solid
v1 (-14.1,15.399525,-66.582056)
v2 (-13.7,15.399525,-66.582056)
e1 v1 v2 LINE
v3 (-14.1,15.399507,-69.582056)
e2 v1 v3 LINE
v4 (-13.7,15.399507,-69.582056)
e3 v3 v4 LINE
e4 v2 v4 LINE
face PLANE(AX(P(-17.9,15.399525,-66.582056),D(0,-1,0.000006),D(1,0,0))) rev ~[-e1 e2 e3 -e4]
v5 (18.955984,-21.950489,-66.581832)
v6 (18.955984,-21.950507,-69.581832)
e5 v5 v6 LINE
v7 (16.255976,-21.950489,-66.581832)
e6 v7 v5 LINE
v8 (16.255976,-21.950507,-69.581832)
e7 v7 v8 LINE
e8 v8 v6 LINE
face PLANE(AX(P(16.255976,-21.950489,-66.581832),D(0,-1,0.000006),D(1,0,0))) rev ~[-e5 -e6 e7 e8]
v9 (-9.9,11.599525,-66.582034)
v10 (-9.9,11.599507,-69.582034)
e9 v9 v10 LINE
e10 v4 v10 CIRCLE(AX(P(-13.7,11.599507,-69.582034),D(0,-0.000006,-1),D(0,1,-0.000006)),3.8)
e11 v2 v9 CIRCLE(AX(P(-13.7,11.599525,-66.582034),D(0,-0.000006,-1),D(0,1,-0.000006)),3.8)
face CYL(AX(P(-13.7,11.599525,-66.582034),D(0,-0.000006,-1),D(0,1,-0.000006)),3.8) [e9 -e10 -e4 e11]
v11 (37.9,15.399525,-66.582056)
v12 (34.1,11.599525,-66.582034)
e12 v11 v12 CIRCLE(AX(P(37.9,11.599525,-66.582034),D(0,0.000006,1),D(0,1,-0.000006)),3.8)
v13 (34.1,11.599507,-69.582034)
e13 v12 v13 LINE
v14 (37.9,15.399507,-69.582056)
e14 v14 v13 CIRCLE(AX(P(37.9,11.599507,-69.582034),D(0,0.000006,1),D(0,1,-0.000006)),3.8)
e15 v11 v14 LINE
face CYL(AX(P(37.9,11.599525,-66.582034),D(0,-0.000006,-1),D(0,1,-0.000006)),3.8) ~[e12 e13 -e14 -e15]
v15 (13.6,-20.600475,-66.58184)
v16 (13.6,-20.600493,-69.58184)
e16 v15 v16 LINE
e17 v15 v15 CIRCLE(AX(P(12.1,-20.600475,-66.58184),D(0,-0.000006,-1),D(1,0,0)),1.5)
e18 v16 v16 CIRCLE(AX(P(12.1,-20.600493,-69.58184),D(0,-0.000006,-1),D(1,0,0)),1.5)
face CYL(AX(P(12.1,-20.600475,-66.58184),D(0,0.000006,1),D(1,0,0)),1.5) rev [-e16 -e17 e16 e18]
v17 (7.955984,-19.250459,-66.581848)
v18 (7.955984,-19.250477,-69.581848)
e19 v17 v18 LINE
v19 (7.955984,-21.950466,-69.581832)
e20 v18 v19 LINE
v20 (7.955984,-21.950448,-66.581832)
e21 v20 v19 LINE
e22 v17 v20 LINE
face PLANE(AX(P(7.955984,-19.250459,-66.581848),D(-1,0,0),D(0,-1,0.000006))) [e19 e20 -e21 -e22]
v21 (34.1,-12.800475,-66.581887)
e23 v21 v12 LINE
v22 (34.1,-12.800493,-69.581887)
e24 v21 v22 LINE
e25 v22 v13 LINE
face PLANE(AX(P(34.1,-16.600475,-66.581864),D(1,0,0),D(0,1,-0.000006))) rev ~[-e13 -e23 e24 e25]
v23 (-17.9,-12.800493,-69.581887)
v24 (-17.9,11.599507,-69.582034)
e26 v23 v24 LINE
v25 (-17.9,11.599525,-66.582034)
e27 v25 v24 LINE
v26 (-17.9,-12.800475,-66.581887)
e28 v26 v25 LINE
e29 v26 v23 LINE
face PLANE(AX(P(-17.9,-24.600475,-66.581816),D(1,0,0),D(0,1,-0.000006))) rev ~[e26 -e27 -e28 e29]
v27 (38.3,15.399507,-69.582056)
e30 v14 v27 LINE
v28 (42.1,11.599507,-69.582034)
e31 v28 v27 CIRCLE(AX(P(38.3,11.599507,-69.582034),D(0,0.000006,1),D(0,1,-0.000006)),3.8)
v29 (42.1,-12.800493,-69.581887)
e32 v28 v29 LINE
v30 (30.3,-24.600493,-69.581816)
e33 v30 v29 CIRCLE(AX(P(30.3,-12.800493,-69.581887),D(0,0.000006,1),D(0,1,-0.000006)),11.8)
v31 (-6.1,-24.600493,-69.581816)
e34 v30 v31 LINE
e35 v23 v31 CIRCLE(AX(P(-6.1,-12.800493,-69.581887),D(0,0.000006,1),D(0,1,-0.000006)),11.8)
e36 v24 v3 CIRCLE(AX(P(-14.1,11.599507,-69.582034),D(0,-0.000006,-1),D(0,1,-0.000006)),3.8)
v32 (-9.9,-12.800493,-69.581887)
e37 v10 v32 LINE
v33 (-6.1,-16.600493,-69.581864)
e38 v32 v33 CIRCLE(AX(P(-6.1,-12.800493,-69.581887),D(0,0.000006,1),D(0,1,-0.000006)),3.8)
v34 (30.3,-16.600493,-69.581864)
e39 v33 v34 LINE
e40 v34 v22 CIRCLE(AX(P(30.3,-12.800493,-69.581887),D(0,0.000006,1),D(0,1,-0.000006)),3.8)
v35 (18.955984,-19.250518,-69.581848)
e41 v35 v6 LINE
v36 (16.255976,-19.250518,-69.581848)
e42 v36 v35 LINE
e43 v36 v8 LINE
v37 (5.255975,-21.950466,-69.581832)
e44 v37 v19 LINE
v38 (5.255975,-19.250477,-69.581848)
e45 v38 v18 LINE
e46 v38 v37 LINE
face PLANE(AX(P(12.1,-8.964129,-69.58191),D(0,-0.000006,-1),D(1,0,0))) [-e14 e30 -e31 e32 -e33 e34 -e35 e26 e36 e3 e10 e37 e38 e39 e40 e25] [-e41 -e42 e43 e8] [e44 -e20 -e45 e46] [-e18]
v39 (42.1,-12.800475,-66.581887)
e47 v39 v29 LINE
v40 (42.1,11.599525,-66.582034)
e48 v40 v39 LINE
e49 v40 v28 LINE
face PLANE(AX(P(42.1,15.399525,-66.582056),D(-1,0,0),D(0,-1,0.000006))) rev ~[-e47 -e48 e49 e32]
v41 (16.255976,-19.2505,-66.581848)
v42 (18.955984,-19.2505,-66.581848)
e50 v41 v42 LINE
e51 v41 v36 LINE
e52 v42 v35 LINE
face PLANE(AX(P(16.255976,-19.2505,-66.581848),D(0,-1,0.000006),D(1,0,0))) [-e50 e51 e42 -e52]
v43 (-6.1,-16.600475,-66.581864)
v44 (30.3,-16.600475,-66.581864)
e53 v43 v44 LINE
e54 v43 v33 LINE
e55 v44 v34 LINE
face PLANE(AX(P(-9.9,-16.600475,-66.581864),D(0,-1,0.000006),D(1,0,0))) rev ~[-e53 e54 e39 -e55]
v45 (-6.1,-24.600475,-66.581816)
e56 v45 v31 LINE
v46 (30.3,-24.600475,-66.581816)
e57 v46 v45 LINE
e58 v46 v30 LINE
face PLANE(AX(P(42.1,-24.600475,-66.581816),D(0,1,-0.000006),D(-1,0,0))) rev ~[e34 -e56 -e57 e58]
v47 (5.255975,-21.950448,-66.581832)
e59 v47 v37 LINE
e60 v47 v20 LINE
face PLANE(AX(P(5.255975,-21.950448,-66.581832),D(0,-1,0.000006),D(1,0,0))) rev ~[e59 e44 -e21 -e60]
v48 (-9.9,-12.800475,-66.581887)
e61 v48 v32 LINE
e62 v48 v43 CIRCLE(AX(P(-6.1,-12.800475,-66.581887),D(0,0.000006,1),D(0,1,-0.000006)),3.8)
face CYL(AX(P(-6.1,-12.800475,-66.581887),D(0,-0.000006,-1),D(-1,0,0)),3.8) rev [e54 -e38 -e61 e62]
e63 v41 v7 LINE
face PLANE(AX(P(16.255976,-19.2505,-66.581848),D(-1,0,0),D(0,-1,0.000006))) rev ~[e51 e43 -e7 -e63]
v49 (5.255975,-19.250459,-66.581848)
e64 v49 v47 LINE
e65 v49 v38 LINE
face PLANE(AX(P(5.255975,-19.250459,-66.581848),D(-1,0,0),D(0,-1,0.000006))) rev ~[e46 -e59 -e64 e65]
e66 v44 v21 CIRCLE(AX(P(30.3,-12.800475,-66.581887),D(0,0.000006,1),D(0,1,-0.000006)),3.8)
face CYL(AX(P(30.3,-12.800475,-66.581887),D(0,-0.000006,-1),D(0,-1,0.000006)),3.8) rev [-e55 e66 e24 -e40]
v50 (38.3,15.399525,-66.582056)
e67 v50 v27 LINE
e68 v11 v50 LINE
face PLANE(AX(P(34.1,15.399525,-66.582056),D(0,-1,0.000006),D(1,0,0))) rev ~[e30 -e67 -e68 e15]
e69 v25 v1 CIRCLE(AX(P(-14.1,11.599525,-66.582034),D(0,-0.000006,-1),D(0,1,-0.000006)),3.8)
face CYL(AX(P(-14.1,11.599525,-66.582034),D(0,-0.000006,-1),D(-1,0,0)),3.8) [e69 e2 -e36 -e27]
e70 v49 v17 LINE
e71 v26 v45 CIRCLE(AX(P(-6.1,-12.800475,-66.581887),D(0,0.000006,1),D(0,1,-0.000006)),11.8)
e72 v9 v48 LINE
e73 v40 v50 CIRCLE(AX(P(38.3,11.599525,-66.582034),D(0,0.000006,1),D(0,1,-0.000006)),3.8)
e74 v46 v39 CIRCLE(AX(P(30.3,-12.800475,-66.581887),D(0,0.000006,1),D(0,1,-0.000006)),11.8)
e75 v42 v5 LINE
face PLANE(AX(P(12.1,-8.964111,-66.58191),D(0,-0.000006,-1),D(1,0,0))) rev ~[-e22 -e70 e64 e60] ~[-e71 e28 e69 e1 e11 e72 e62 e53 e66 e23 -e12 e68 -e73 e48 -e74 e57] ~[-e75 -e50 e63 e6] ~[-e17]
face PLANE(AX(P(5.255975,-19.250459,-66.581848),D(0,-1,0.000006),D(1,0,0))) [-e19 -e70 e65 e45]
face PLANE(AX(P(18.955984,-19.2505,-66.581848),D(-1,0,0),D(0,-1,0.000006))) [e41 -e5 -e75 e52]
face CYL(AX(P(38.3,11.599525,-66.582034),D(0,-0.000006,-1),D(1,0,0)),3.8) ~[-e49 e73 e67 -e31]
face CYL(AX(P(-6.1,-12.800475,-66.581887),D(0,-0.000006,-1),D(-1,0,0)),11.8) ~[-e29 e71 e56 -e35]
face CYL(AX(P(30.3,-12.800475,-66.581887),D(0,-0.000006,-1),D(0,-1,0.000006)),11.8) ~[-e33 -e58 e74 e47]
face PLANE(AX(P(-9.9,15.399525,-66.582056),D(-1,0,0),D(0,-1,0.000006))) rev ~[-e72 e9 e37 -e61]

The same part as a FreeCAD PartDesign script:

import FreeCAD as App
import Part
import Sketcher
Q = App.Units.Quantity


def edges_at(feature, points):
    """Names of the edges that pass closest to the given points."""
    edges = feature.Shape.Edges
    near = lambda p: min(range(len(edges)), key=lambda i: edges[i].distToShape(Part.Vertex(*p))[0])
    return sorted({f"Edge{near(p) + 1}" for p in points})

doc = App.newDocument("Part")
params = doc.addObject("Spreadsheet::Sheet", "Params")
for row, (alias, value) in enumerate([
    ("sketch1_diameter", "3 mm"),
    ("sketch1_width", "8 mm"),
    ("sketch1_width2", "44 mm"),
    ("sketch1_height", "40 mm"),
    ("sketch1_height2", "32 mm"),
    ("pad1_length", "3 mm"),
    ("fillet_radius", "3.8 mm"),
    ("fillet2_radius", "11.8 mm"),
], start=1):
    params.set(f"A{row}", alias)
    params.set(f"B{row}", "=" + value)
    params.setAlias(f"B{row}", alias)

body = doc.addObject("PartDesign::Body", "Body")

sketch1 = body.newObject("Sketcher::SketchObject", "Sketch")
sketch1.AttachmentSupport = (doc.getObject("XY_Plane"), [""])
sketch1.MapMode = "FlatFace"
sketch1.AttachmentOffset = App.Placement(App.Vector(0, 0, 2.818036), App.Rotation())
sketch1.addGeometry(Part.LineSegment(App.Vector(-30, -24.600475, 0), App.Vector(-30, 15.399525, 0)), False)
sketch1.addGeometry(Part.LineSegment(App.Vector(-30, 15.399525, 0), App.Vector(-22, 15.399525, 0)), False)
sketch1.addGeometry(Part.LineSegment(App.Vector(-22, 15.399525, 0), App.Vector(-22, -16.600475, 0)), False)
sketch1.addGeometry(Part.LineSegment(App.Vector(-22, -16.600475, 0), App.Vector(22, -16.600475, 0)), False)
sketch1.addGeometry(Part.LineSegment(App.Vector(22, -16.600475, 0), App.Vector(22, 15.399525, 0)), False)
sketch1.addGeometry(Part.LineSegment(App.Vector(22, 15.399525, 0), App.Vector(30, 15.399525, 0)), False)
sketch1.addGeometry(Part.LineSegment(App.Vector(30, 15.399525, 0), App.Vector(30, -24.600475, 0)), False)
sketch1.addGeometry(Part.LineSegment(App.Vector(30, -24.600475, 0), App.Vector(-30, -24.600475, 0)), False)
sketch1.addGeometry(Part.LineSegment(App.Vector(-4.144016, -19.25046, 0), App.Vector(-6.844024, -19.25046, 0)), False)
sketch1.addGeometry(Part.LineSegment(App.Vector(-6.844024, -19.25046, 0), App.Vector(-6.844024, -21.950449, 0)), False)
sketch1.addGeometry(Part.LineSegment(App.Vector(-6.844024, -21.950449, 0), App.Vector(-4.144016, -21.950449, 0)), False)
sketch1.addGeometry(Part.LineSegment(App.Vector(-4.144016, -21.950449, 0), App.Vector(-4.144016, -19.25046, 0)), False)
sketch1.addGeometry(Part.Circle(App.Vector(0, -20.600475, 0), App.Vector(0, 0, 1), 1.5), False)
sketch1.addGeometry(Part.LineSegment(App.Vector(6.855984, -19.250501, 0), App.Vector(4.155976, -19.250501, 0)), False)
sketch1.addGeometry(Part.LineSegment(App.Vector(4.155976, -19.250501, 0), App.Vector(4.155976, -21.950489, 0)), False)
sketch1.addGeometry(Part.LineSegment(App.Vector(4.155976, -21.950489, 0), App.Vector(6.855984, -21.950489, 0)), False)
sketch1.addGeometry(Part.LineSegment(App.Vector(6.855984, -21.950489, 0), App.Vector(6.855984, -19.250501, 0)), False)
sketch1.addConstraint(Sketcher.Constraint("Coincident", 0, 2, 1, 1))
sketch1.addConstraint(Sketcher.Constraint("Coincident", 1, 2, 2, 1))
sketch1.addConstraint(Sketcher.Constraint("Coincident", 2, 2, 3, 1))
sketch1.addConstraint(Sketcher.Constraint("Coincident", 3, 2, 4, 1))
sketch1.addConstraint(Sketcher.Constraint("Coincident", 4, 2, 5, 1))
sketch1.addConstraint(Sketcher.Constraint("Coincident", 5, 2, 6, 1))
sketch1.addConstraint(Sketcher.Constraint("Coincident", 6, 2, 7, 1))
sketch1.addConstraint(Sketcher.Constraint("Coincident", 7, 2, 0, 1))
sketch1.addConstraint(Sketcher.Constraint("Coincident", 8, 2, 9, 1))
sketch1.addConstraint(Sketcher.Constraint("Coincident", 9, 2, 10, 1))
sketch1.addConstraint(Sketcher.Constraint("Coincident", 10, 2, 11, 1))
sketch1.addConstraint(Sketcher.Constraint("Coincident", 11, 2, 8, 1))
sketch1.addConstraint(Sketcher.Constraint("Coincident", 13, 2, 14, 1))
sketch1.addConstraint(Sketcher.Constraint("Coincident", 14, 2, 15, 1))
sketch1.addConstraint(Sketcher.Constraint("Coincident", 15, 2, 16, 1))
sketch1.addConstraint(Sketcher.Constraint("Coincident", 16, 2, 13, 1))
sketch1.addConstraint(Sketcher.Constraint("Vertical", 0))
sketch1.addConstraint(Sketcher.Constraint("Horizontal", 1))
sketch1.addConstraint(Sketcher.Constraint("Vertical", 2))
sketch1.addConstraint(Sketcher.Constraint("Horizontal", 3))
sketch1.addConstraint(Sketcher.Constraint("Vertical", 4))
sketch1.addConstraint(Sketcher.Constraint("Horizontal", 5))
sketch1.addConstraint(Sketcher.Constraint("Vertical", 6))
sketch1.addConstraint(Sketcher.Constraint("Horizontal", 7))
sketch1.addConstraint(Sketcher.Constraint("Horizontal", 8))
sketch1.addConstraint(Sketcher.Constraint("Vertical", 9))
sketch1.addConstraint(Sketcher.Constraint("Horizontal", 10))
sketch1.addConstraint(Sketcher.Constraint("Vertical", 11))
sketch1.addConstraint(Sketcher.Constraint("Horizontal", 13))
sketch1.addConstraint(Sketcher.Constraint("Vertical", 14))
sketch1.addConstraint(Sketcher.Constraint("Horizontal", 15))
sketch1.addConstraint(Sketcher.Constraint("Vertical", 16))
sketch1.addConstraint(Sketcher.Constraint("Symmetric", 1, 2, 4, 2, -2))
sketch1.addConstraint(Sketcher.Constraint("PointOnObject", 12, 3, -2))
sketch1.addConstraint(Sketcher.Constraint("Equal", 1, 5))
sketch1.addConstraint(Sketcher.Constraint("Equal", 10, 13))
sketch1.addConstraint(Sketcher.Constraint("Equal", 11, 14))
sketch1.addConstraint(Sketcher.Constraint("Diameter", 12, Q("3 mm")))
sketch1.addConstraint(Sketcher.Constraint("DistanceX", 1, 1, 1, 2, Q("8 mm")))
sketch1.addConstraint(Sketcher.Constraint("DistanceX", 3, 1, 3, 2, Q("44 mm")))
sketch1.addConstraint(Sketcher.Constraint("DistanceY", 0, 1, 0, 2, Q("40 mm")))
sketch1.addConstraint(Sketcher.Constraint("DistanceY", 2, 2, 2, 1, Q("32 mm")))
sketch1.addConstraint(Sketcher.Constraint("DistanceY", 12, 3, 0, 2, Q("36 mm")))
sketch1.addConstraint(Sketcher.Constraint("DistanceX", 8, 2, 13, 2, Q("11 mm")))
sketch1.addConstraint(Sketcher.Constraint("DistanceX", 8, 2, 8, 1, Q("2.700009 mm")))
sketch1.addConstraint(Sketcher.Constraint("DistanceY", 9, 2, 9, 1, Q("2.699989 mm")))
sketch1.addConstraint(Sketcher.Constraint("DistanceY", 13, 2, -1, 1, Q("19.250501 mm")))
sketch1.addConstraint(Sketcher.Constraint("DistanceY", 8, 2, -1, 1, Q("19.25046 mm")))
sketch1.addConstraint(Sketcher.Constraint("DistanceY", 12, 3, -1, 1, Q("20.600475 mm")))
sketch1.addConstraint(Sketcher.Constraint("DistanceX", 8, 2, -1, 1, Q("6.844024 mm")))
sketch1.setExpression("Constraints[37]", "Params.sketch1_diameter")
sketch1.setExpression("Constraints[38]", "Params.sketch1_width")
sketch1.setExpression("Constraints[39]", "Params.sketch1_width2")
sketch1.setExpression("Constraints[40]", "Params.sketch1_height")
sketch1.setExpression("Constraints[41]", "Params.sketch1_height2")
pad1 = body.newObject("PartDesign::Pad", "Pad")
pad1.Profile = sketch1
pad1.setExpression("Length", "Params.pad1_length")
pad1.Reversed = True
doc.recompute()

fillet = body.newObject("PartDesign::Fillet", "Fillet")
fillet.Base = (pad1, edges_at(pad1, [
    (-30, 15.4, 1.318),
    (-22, 15.4, 1.318),
    (22, 15.4, 1.318),
    (30, 15.4, 1.318),
    (-22, -16.6, 1.318),
    (22, -16.6, 1.318),
]))
fillet.setExpression("Radius", "Params.fillet_radius")
doc.recompute()

fillet2 = body.newObject("PartDesign::Fillet", "Fillet001")
fillet2.Base = (fillet, edges_at(fillet, [(30, -24.6, 1.318), (-30, -24.6, 1.318)]))
fillet2.setExpression("Radius", "Params.fillet2_radius")
body2 = doc.addObject("PartDesign::Body", "Body001")
doc.recompute()

body.Placement = App.Placement(App.Vector(12.1, 0, -69.4), App.Rotation(App.Vector(0, 0, 1), 0))
boolean = body2.newObject("PartDesign::Boolean", "Boolean")
boolean.Type = "Fuse"
boolean.addObjects([body])

doc.recompute()
